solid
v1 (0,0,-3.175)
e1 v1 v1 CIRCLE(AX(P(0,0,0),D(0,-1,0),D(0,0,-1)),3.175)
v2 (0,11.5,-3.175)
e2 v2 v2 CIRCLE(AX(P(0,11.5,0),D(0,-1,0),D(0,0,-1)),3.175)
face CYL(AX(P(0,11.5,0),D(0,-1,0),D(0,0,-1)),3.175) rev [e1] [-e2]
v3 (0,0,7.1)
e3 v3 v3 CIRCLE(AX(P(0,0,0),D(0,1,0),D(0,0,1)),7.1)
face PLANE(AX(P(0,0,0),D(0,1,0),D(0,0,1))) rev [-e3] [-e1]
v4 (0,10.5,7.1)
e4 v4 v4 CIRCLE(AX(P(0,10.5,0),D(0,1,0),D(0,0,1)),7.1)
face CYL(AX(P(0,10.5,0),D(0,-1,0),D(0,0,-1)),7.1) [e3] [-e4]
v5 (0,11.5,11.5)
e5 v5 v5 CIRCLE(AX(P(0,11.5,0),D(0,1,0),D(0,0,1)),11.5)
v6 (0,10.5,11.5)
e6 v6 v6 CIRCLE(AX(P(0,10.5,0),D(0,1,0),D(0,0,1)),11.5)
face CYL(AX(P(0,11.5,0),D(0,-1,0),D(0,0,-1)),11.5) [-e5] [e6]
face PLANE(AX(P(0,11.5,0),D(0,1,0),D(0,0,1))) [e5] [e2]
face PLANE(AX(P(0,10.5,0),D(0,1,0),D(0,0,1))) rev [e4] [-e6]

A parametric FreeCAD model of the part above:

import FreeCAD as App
import Part
import Sketcher

V = App.Vector

doc = App.newDocument("Part")
body = doc.addObject("PartDesign::Body", "Body")

# Sketch on XZ plane
sketch1 = body.newObject("Sketcher::SketchObject", "Sketch")
sketch1.AttachmentSupport = (doc.getObject("XZ_Plane"), [""])
sketch1.MapMode = "FlatFace"
sketch1.addGeometry(Part.Circle(V(0, 0, 0), V(0, 0, 1), 7.1), False)
sketch1.addConstraint([
    Sketcher.Constraint("Coincident", 0, 3, -1, 1),
    Sketcher.Constraint("Diameter", 0, 14.2),
])
pad1 = body.newObject("PartDesign::Pad", "Pad")
pad1.Profile = sketch1
pad1.Length = 10.5
pad1.Reversed = True

# Sketch on XZ plane
sketch2 = body.newObject("Sketcher::SketchObject", "Sketch001")
sketch2.AttachmentSupport = (doc.getObject("XZ_Plane"), [""])
sketch2.MapMode = "FlatFace"
sketch2.AttachmentOffset = App.Placement(V(0, 0, -10.5), App.Rotation())
sketch2.addGeometry(Part.Circle(V(0, 0, 0), V(0, 0, 1), 11.5), False)
sketch2.addConstraint([
    Sketcher.Constraint("Coincident", 0, 3, -1, 1),
    Sketcher.Constraint("Diameter", 0, 23.0),
])
pad2 = body.newObject("PartDesign::Pad", "Pad001")
pad2.Profile = sketch2
pad2.Length = 1
pad2.Reversed = True

# Sketch on XZ plane
sketch3 = body.newObject("Sketcher::SketchObject", "Sketch002")
sketch3.AttachmentSupport = (doc.getObject("XZ_Plane"), [""])
sketch3.MapMode = "FlatFace"
sketch3.addGeometry(Part.Circle(V(0, 0, 0), V(0, 0, 1), 3.175), False)
sketch3.addConstraint([
    Sketcher.Constraint("Coincident", 0, 3, -1, 1),
    Sketcher.Constraint("Diameter", 0, 6.35),
])
pocket1 = body.newObject("PartDesign::Pocket", "Pocket")
pocket1.Profile = sketch3
pocket1.Type = "ThroughAll"

doc.recompute()
